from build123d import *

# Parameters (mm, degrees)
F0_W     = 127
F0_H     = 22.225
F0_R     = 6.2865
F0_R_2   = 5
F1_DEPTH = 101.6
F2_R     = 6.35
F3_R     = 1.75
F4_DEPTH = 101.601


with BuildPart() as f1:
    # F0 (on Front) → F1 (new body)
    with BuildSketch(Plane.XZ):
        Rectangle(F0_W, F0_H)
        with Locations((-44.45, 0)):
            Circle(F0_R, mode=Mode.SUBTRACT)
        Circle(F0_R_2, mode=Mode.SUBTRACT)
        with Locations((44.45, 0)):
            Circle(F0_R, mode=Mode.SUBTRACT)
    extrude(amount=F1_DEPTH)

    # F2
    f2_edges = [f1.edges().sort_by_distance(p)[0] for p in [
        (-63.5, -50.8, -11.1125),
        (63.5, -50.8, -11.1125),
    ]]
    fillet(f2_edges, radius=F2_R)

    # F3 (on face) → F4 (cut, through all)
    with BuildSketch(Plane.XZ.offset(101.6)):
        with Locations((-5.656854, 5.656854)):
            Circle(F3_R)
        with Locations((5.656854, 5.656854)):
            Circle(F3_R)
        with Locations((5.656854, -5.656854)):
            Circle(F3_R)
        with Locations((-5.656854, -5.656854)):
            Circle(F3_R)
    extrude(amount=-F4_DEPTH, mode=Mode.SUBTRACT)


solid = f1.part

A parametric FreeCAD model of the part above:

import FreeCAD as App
import Part
import Sketcher
from FreeCAD import Vector
Q = App.Units.Quantity


def edges_at(feature, points):
    """Names of the edges that pass closest to the given points."""
    edges = feature.Shape.Edges
    near = lambda p: min(range(len(edges)), key=lambda i: edges[i].distToShape(Part.Vertex(*p))[0])
    return sorted({f"Edge{near(p) + 1}" for p in points})

doc = App.newDocument("Part")
body = doc.addObject("PartDesign::Body", "Body")

# Sketch on XZ plane
sketch1 = doc.addObject("Sketcher::SketchObject", "Sketch")
body.addObject(sketch1)
sketch1.AttachmentSupport = (doc.XZ_Plane, [""])
sketch1.MapMode = "FlatFace"
sketch1.addGeometry([
    Part.LineSegment(Vector(-64, 11, 0), Vector(-64, -11, 0)),  # 0
    Part.LineSegment(Vector(-64, -11, 0), Vector(64, -11, 0)),  # 1
    Part.LineSegment(Vector(64, -11, 0), Vector(64, 11, 0)),  # 2
    Part.LineSegment(Vector(64, 11, 0), Vector(-64, 11, 0)),  # 3
    Part.Circle(Vector(-44, 0, 0), Vector(0, 0, 1), 6),  # 4
    Part.Circle(Vector(0, 0, 0), Vector(0, 0, 1), 5),  # 5
    Part.Circle(Vector(44, 0, 0), Vector(0, 0, 1), 6),  # 6
], False)
sketch1.addConstraint([
    Sketcher.Constraint("Coincident", 0, 2, 1, 1),
    Sketcher.Constraint("Coincident", 1, 2, 2, 1),
    Sketcher.Constraint("Coincident", 2, 2, 3, 1),
    Sketcher.Constraint("Coincident", 3, 2, 0, 1),
    Sketcher.Constraint("Vertical", 0),
    Sketcher.Constraint("Horizontal", 1),
    Sketcher.Constraint("Vertical", 2),
    Sketcher.Constraint("Horizontal", 3),
    Sketcher.Constraint("Coincident", 5, 3, -1, 1),
    Sketcher.Constraint("Equal", 4, 6),
    Sketcher.Constraint("Symmetric", 4, 3, 6, 3, -1, 1),
    Sketcher.Constraint("Symmetric", 0, 2, 2, 2, -1, 1),
    Sketcher.Constraint("PointOnObject", 4, 3, -1),
    Sketcher.Constraint("DistanceX", 1, 1, 1, 2, Q("5 in")),
    Sketcher.Constraint("Diameter", 4, Q("0.495 in")),
    Sketcher.Constraint("DistanceX", 4, 3, 6, 3, Q("3.5 in")),
    Sketcher.Constraint("Diameter", 5, 10.0),
    Sketcher.Constraint("DistanceY", 0, 2, 0, 1, Q("0.875 in")),
])
pad1 = doc.addObject("PartDesign::Pad", "Pad")
body.addObject(pad1)
pad1.Profile = sketch1
pad1.Length = Q("4 in")
doc.recompute()

fillet = doc.addObject("PartDesign::Fillet", "Fillet")
body.addObject(fillet)
fillet.Base = (pad1, edges_at(pad1, [(-63.5, -50.8, -11.113), (63.5, -50.8, -11.113)]))
fillet.Radius = Q("0.25 in")

# Sketch on XZ plane
sketch2 = doc.addObject("Sketcher::SketchObject", "Sketch001")
body.addObject(sketch2)
sketch2.AttachmentSupport = (doc.XZ_Plane, [""])
sketch2.MapMode = "FlatFace"
sketch2.AttachmentOffset = App.Placement(Vector(0, 0, 4 * 25.4), App.Rotation())
sketch2.addGeometry([
    Part.Circle(Vector(-5.7, 5.7, 0), Vector(0, 0, 1), 1.8),
    Part.Circle(Vector(5.7, 5.7, 0), Vector(0, 0, 1), 1.8),
    Part.Circle(Vector(5.7, -5.7, 0), Vector(0, 0, 1), 1.8),
    Part.Circle(Vector(-5.7, -5.7, 0), Vector(0, 0, 1), 1.8),
], False)
sketch2.addConstraint([
    Sketcher.Constraint("Equal", 0, 1),
    Sketcher.Constraint("Equal", 1, 2),
    Sketcher.Constraint("Equal", 2, 3),
    Sketcher.Constraint("Symmetric", 0, 3, 2, 3, -1, 1),
    Sketcher.Constraint("Symmetric", 1, 3, 3, 3, -1, 1),
    Sketcher.Constraint("Symmetric", 0, 3, 1, 3, -2),
    Sketcher.Constraint("Diameter", 0, 3.5),
    Sketcher.Constraint("DistanceX", 0, 3, -1, 1, 5.656854),
    Sketcher.Constraint("DistanceY", -1, 1, 0, 3, 5.656854),
])
pocket1 = doc.addObject("PartDesign::Pocket", "Pocket")
body.addObject(pocket1)
pocket1.Profile = sketch2
pocket1.Type = "ThroughAll"

doc.recompute()
